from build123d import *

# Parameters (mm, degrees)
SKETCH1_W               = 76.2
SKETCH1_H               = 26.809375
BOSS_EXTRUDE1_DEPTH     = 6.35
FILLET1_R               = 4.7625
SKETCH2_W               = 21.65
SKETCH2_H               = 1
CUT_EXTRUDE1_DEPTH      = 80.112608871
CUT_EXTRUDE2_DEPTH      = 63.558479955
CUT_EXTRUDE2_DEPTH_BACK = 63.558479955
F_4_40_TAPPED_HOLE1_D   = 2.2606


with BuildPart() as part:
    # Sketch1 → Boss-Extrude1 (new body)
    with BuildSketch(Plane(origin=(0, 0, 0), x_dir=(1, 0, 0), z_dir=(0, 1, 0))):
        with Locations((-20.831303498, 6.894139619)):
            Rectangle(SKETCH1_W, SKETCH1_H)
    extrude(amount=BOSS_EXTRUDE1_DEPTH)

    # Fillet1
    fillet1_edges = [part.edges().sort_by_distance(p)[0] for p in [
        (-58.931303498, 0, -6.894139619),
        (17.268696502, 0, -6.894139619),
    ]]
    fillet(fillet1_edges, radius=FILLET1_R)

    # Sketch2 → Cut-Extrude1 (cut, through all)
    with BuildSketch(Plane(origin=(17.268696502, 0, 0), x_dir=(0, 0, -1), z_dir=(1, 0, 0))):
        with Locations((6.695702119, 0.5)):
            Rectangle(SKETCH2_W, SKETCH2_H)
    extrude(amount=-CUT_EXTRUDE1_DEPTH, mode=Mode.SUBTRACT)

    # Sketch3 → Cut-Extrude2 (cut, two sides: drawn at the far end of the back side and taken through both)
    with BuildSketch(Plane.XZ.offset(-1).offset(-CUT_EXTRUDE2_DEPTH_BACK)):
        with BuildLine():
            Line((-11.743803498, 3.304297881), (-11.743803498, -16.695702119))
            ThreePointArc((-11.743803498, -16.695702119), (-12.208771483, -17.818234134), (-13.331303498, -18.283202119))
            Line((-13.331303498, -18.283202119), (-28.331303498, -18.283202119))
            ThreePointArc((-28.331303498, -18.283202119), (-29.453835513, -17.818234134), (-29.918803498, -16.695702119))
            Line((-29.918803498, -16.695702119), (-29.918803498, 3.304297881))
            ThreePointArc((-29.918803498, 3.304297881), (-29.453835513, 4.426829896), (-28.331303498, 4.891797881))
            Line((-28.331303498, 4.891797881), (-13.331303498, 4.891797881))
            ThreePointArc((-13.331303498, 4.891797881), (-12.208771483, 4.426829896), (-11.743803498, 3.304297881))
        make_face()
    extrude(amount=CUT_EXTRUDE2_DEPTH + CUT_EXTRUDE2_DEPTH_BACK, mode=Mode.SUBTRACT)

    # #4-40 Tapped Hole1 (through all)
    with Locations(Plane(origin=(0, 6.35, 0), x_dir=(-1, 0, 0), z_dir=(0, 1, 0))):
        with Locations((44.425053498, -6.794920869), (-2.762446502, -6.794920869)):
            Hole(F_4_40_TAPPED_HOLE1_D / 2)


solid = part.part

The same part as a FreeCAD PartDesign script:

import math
import FreeCAD as App
import Part
import Sketcher

V = App.Vector
Q = App.Units.Quantity


def edges_at(feature, points):
    """Names of the edges that pass closest to the given points."""
    edges = feature.Shape.Edges
    near = lambda p: min(range(len(edges)), key=lambda i: edges[i].distToShape(Part.Vertex(*p))[0])
    return sorted({f"Edge{near(p) + 1}" for p in points})

doc = App.newDocument("Part")
body = doc.addObject("PartDesign::Body", "Body")

# Sketch on XZ plane
sketch1 = body.newObject("Sketcher::SketchObject", "Sketch")
sketch1.AttachmentSupport = (doc.getObject("XZ_Plane"), [""])
sketch1.MapMode = "FlatFace"
sketch1.addGeometry([
    Part.LineSegment(V(-59, -20, 0), V(-59, 7, 0)),
    Part.LineSegment(V(-59, 7, 0), V(17, 7, 0)),
    Part.LineSegment(V(17, 7, 0), V(17, -20, 0)),
    Part.LineSegment(V(17, -20, 0), V(-59, -20, 0)),
], False)
sketch1.addConstraint([
    Sketcher.Constraint("Coincident", 0, 2, 1, 1),
    Sketcher.Constraint("Coincident", 1, 2, 2, 1),
    Sketcher.Constraint("Coincident", 2, 2, 3, 1),
    Sketcher.Constraint("Coincident", 3, 2, 0, 1),
    Sketcher.Constraint("Vertical", 0),
    Sketcher.Constraint("Horizontal", 1),
    Sketcher.Constraint("Vertical", 2),
    Sketcher.Constraint("Horizontal", 3),
    Sketcher.Constraint("DistanceX", 1, 1, 1, 2, Q("3 in")),
    Sketcher.Constraint("DistanceY", 0, 1, 0, 2, Q("26.809375 mm")),
    Sketcher.Constraint("DistanceX", 0, 2, -1, 1, Q("58.931303 mm")),
    Sketcher.Constraint("DistanceY", -1, 1, 0, 2, Q("6.510548 mm")),
])
pad1 = body.newObject("PartDesign::Pad", "Pad")
pad1.Profile = sketch1
pad1.Length = Q("0.25 in")
pad1.Reversed = True
doc.recompute()

fillet = body.newObject("PartDesign::Fillet", "Fillet")
fillet.Base = (pad1, edges_at(pad1, [(-58.931, 0, -6.894), (17.269, 0, -6.894)]))
fillet.Radius = Q("0.1875 in")

# Sketch on YZ plane
sketch2 = body.newObject("Sketcher::SketchObject", "Sketch001")
sketch2.AttachmentSupport = (doc.getObject("YZ_Plane"), [""])
sketch2.MapMode = "FlatFace"
sketch2.AttachmentOffset = App.Placement(V(0, 0, 17.268697), App.Rotation())
sketch2.addGeometry([
    Part.LineSegment(V(1, 4.1, 0), V(0, 4.1, 0)),
    Part.LineSegment(V(0, 4.1, 0), V(0, -17.5, 0)),
    Part.LineSegment(V(0, -17.5, 0), V(1, -17.5, 0)),
    Part.LineSegment(V(1, -17.5, 0), V(1, 4.1, 0)),
], False)
sketch2.addConstraint([
    Sketcher.Constraint("Coincident", 0, 2, 1, 1),
    Sketcher.Constraint("Coincident", 1, 2, 2, 1),
    Sketcher.Constraint("Coincident", 2, 2, 3, 1),
    Sketcher.Constraint("Coincident", 3, 2, 0, 1),
    Sketcher.Constraint("Horizontal", 0),
    Sketcher.Constraint("Vertical", 1),
    Sketcher.Constraint("Horizontal", 2),
    Sketcher.Constraint("Vertical", 3),
    Sketcher.Constraint("PointOnObject", 0, 2, -2),
    Sketcher.Constraint("DistanceX", 0, 2, 0, 1, Q("1 mm")),
    Sketcher.Constraint("DistanceY", 1, 2, 1, 1, Q("21.65 mm")),
    Sketcher.Constraint("DistanceY", -1, 1, 0, 2, Q("4.129298 mm")),
])
pocket1 = body.newObject("PartDesign::Pocket", "Pocket")
pocket1.Profile = sketch2
pocket1.Type = "ThroughAll"

# Sketch on XZ plane
sketch3 = body.newObject("Sketcher::SketchObject", "Sketch002")
sketch3.AttachmentSupport = (doc.getObject("XZ_Plane"), [""])
sketch3.MapMode = "FlatFace"
sketch3.AttachmentOffset = App.Placement(V(0, 0, -1), App.Rotation())
sketch3.addGeometry([
    Part.LineSegment(V(-11.7, -16.7, 0), V(-11.7, 3.3, 0)),  # 0
    Part.ArcOfCircle(Part.Circle(V(-13.3, 3.3, 0), V(0, 0, 1), 1.6), math.radians(0), math.radians(90)),  # 1
    Part.LineSegment(V(-13.3, 4.9, 0), V(-28.3, 4.9, 0)),  # 2
    Part.ArcOfCircle(Part.Circle(V(-28.3, 3.3, 0), V(0, 0, 1), 1.6), math.radians(90), math.radians(180)),  # 3
    Part.LineSegment(V(-29.9, 3.3, 0), V(-29.9, -16.7, 0)),  # 4
    Part.ArcOfCircle(Part.Circle(V(-28.3, -16.7, 0), V(0, 0, 1), 1.6), math.radians(180), math.radians(270)),  # 5
    Part.LineSegment(V(-28.3, -18.3, 0), V(-13.3, -18.3, 0)),  # 6
    Part.ArcOfCircle(Part.Circle(V(-13.3, -16.7, 0), V(0, 0, 1), 1.6), math.radians(-90), math.radians(0)),  # 7
], False)
sketch3.addConstraint([
    Sketcher.Constraint("Tangent", 0, 2, 1, 1),
    Sketcher.Constraint("Tangent", 1, 2, 2, 1),
    Sketcher.Constraint("Tangent", 2, 2, 3, 1),
    Sketcher.Constraint("Tangent", 3, 2, 4, 1),
    Sketcher.Constraint("Tangent", 4, 2, 5, 1),
    Sketcher.Constraint("Tangent", 5, 2, 6, 1),
    Sketcher.Constraint("Tangent", 6, 2, 7, 1),
    Sketcher.Constraint("Tangent", 7, 2, 0, 1),
    Sketcher.Constraint("Vertical", 0),
    Sketcher.Constraint("Horizontal", 2),
    Sketcher.Constraint("Vertical", 4),
    Sketcher.Constraint("Horizontal", 6),
    Sketcher.Constraint("Equal", 1, 3),
    Sketcher.Constraint("Equal", 3, 5),
    Sketcher.Constraint("Equal", 5, 7),
    Sketcher.Constraint("Radius", 1, Q("0.0625 in")),
    Sketcher.Constraint("DistanceX", 2, 2, 2, 1, Q("15 mm")),
    Sketcher.Constraint("DistanceY", 0, 1, 0, 2, Q("20 mm")),
    Sketcher.Constraint("DistanceX", 1, 3, -1, 1, Q("13.331303 mm")),
    Sketcher.Constraint("DistanceY", -1, 1, 1, 3, Q("3.304298 mm")),
])
pocket2 = body.newObject("PartDesign::Pocket", "Pocket001")
pocket2.Profile = sketch3
pocket2.Type = "ThroughAll"
pocket2.Midplane = True

# Sketch on XZ plane
sketch4 = body.newObject("Sketcher::SketchObject", "Sketch003")
sketch4.AttachmentSupport = (doc.getObject("XZ_Plane"), [""])
sketch4.MapMode = "FlatFace"
sketch4.AttachmentOffset = App.Placement(V(0, 0, -0.25 * 25.4), App.Rotation())
sketch4.addGeometry([
    Part.Circle(V(-44.4, -6.8, 0), V(0, 0, 1), 1.1),
    Part.Circle(V(2.8, -6.8, 0), V(0, 0, 1), 1.1),
], False)
sketch4.addConstraint([
    Sketcher.Constraint("Equal", 0, 1),
    Sketcher.Constraint("Horizontal", 0, 3, 1, 3),
    Sketcher.Constraint("Diameter", 0, Q("0.089 in")),
    Sketcher.Constraint("DistanceX", 0, 3, 1, 3, Q("47.1875 mm")),
    Sketcher.Constraint("DistanceY", 0, 3, -1, 1, Q("6.794921 mm")),
    Sketcher.Constraint("DistanceX", 0, 3, -1, 1, Q("44.425053 mm")),
])
doc.recompute()
hole = body.newObject("PartDesign::Hole", "Hole")
hole.Profile = sketch4
hole.ThreadType = "None"
hole.Diameter = Q("0.089 in")
hole.DepthType = "ThroughAll"
hole.Reversed = True

doc.recompute()
